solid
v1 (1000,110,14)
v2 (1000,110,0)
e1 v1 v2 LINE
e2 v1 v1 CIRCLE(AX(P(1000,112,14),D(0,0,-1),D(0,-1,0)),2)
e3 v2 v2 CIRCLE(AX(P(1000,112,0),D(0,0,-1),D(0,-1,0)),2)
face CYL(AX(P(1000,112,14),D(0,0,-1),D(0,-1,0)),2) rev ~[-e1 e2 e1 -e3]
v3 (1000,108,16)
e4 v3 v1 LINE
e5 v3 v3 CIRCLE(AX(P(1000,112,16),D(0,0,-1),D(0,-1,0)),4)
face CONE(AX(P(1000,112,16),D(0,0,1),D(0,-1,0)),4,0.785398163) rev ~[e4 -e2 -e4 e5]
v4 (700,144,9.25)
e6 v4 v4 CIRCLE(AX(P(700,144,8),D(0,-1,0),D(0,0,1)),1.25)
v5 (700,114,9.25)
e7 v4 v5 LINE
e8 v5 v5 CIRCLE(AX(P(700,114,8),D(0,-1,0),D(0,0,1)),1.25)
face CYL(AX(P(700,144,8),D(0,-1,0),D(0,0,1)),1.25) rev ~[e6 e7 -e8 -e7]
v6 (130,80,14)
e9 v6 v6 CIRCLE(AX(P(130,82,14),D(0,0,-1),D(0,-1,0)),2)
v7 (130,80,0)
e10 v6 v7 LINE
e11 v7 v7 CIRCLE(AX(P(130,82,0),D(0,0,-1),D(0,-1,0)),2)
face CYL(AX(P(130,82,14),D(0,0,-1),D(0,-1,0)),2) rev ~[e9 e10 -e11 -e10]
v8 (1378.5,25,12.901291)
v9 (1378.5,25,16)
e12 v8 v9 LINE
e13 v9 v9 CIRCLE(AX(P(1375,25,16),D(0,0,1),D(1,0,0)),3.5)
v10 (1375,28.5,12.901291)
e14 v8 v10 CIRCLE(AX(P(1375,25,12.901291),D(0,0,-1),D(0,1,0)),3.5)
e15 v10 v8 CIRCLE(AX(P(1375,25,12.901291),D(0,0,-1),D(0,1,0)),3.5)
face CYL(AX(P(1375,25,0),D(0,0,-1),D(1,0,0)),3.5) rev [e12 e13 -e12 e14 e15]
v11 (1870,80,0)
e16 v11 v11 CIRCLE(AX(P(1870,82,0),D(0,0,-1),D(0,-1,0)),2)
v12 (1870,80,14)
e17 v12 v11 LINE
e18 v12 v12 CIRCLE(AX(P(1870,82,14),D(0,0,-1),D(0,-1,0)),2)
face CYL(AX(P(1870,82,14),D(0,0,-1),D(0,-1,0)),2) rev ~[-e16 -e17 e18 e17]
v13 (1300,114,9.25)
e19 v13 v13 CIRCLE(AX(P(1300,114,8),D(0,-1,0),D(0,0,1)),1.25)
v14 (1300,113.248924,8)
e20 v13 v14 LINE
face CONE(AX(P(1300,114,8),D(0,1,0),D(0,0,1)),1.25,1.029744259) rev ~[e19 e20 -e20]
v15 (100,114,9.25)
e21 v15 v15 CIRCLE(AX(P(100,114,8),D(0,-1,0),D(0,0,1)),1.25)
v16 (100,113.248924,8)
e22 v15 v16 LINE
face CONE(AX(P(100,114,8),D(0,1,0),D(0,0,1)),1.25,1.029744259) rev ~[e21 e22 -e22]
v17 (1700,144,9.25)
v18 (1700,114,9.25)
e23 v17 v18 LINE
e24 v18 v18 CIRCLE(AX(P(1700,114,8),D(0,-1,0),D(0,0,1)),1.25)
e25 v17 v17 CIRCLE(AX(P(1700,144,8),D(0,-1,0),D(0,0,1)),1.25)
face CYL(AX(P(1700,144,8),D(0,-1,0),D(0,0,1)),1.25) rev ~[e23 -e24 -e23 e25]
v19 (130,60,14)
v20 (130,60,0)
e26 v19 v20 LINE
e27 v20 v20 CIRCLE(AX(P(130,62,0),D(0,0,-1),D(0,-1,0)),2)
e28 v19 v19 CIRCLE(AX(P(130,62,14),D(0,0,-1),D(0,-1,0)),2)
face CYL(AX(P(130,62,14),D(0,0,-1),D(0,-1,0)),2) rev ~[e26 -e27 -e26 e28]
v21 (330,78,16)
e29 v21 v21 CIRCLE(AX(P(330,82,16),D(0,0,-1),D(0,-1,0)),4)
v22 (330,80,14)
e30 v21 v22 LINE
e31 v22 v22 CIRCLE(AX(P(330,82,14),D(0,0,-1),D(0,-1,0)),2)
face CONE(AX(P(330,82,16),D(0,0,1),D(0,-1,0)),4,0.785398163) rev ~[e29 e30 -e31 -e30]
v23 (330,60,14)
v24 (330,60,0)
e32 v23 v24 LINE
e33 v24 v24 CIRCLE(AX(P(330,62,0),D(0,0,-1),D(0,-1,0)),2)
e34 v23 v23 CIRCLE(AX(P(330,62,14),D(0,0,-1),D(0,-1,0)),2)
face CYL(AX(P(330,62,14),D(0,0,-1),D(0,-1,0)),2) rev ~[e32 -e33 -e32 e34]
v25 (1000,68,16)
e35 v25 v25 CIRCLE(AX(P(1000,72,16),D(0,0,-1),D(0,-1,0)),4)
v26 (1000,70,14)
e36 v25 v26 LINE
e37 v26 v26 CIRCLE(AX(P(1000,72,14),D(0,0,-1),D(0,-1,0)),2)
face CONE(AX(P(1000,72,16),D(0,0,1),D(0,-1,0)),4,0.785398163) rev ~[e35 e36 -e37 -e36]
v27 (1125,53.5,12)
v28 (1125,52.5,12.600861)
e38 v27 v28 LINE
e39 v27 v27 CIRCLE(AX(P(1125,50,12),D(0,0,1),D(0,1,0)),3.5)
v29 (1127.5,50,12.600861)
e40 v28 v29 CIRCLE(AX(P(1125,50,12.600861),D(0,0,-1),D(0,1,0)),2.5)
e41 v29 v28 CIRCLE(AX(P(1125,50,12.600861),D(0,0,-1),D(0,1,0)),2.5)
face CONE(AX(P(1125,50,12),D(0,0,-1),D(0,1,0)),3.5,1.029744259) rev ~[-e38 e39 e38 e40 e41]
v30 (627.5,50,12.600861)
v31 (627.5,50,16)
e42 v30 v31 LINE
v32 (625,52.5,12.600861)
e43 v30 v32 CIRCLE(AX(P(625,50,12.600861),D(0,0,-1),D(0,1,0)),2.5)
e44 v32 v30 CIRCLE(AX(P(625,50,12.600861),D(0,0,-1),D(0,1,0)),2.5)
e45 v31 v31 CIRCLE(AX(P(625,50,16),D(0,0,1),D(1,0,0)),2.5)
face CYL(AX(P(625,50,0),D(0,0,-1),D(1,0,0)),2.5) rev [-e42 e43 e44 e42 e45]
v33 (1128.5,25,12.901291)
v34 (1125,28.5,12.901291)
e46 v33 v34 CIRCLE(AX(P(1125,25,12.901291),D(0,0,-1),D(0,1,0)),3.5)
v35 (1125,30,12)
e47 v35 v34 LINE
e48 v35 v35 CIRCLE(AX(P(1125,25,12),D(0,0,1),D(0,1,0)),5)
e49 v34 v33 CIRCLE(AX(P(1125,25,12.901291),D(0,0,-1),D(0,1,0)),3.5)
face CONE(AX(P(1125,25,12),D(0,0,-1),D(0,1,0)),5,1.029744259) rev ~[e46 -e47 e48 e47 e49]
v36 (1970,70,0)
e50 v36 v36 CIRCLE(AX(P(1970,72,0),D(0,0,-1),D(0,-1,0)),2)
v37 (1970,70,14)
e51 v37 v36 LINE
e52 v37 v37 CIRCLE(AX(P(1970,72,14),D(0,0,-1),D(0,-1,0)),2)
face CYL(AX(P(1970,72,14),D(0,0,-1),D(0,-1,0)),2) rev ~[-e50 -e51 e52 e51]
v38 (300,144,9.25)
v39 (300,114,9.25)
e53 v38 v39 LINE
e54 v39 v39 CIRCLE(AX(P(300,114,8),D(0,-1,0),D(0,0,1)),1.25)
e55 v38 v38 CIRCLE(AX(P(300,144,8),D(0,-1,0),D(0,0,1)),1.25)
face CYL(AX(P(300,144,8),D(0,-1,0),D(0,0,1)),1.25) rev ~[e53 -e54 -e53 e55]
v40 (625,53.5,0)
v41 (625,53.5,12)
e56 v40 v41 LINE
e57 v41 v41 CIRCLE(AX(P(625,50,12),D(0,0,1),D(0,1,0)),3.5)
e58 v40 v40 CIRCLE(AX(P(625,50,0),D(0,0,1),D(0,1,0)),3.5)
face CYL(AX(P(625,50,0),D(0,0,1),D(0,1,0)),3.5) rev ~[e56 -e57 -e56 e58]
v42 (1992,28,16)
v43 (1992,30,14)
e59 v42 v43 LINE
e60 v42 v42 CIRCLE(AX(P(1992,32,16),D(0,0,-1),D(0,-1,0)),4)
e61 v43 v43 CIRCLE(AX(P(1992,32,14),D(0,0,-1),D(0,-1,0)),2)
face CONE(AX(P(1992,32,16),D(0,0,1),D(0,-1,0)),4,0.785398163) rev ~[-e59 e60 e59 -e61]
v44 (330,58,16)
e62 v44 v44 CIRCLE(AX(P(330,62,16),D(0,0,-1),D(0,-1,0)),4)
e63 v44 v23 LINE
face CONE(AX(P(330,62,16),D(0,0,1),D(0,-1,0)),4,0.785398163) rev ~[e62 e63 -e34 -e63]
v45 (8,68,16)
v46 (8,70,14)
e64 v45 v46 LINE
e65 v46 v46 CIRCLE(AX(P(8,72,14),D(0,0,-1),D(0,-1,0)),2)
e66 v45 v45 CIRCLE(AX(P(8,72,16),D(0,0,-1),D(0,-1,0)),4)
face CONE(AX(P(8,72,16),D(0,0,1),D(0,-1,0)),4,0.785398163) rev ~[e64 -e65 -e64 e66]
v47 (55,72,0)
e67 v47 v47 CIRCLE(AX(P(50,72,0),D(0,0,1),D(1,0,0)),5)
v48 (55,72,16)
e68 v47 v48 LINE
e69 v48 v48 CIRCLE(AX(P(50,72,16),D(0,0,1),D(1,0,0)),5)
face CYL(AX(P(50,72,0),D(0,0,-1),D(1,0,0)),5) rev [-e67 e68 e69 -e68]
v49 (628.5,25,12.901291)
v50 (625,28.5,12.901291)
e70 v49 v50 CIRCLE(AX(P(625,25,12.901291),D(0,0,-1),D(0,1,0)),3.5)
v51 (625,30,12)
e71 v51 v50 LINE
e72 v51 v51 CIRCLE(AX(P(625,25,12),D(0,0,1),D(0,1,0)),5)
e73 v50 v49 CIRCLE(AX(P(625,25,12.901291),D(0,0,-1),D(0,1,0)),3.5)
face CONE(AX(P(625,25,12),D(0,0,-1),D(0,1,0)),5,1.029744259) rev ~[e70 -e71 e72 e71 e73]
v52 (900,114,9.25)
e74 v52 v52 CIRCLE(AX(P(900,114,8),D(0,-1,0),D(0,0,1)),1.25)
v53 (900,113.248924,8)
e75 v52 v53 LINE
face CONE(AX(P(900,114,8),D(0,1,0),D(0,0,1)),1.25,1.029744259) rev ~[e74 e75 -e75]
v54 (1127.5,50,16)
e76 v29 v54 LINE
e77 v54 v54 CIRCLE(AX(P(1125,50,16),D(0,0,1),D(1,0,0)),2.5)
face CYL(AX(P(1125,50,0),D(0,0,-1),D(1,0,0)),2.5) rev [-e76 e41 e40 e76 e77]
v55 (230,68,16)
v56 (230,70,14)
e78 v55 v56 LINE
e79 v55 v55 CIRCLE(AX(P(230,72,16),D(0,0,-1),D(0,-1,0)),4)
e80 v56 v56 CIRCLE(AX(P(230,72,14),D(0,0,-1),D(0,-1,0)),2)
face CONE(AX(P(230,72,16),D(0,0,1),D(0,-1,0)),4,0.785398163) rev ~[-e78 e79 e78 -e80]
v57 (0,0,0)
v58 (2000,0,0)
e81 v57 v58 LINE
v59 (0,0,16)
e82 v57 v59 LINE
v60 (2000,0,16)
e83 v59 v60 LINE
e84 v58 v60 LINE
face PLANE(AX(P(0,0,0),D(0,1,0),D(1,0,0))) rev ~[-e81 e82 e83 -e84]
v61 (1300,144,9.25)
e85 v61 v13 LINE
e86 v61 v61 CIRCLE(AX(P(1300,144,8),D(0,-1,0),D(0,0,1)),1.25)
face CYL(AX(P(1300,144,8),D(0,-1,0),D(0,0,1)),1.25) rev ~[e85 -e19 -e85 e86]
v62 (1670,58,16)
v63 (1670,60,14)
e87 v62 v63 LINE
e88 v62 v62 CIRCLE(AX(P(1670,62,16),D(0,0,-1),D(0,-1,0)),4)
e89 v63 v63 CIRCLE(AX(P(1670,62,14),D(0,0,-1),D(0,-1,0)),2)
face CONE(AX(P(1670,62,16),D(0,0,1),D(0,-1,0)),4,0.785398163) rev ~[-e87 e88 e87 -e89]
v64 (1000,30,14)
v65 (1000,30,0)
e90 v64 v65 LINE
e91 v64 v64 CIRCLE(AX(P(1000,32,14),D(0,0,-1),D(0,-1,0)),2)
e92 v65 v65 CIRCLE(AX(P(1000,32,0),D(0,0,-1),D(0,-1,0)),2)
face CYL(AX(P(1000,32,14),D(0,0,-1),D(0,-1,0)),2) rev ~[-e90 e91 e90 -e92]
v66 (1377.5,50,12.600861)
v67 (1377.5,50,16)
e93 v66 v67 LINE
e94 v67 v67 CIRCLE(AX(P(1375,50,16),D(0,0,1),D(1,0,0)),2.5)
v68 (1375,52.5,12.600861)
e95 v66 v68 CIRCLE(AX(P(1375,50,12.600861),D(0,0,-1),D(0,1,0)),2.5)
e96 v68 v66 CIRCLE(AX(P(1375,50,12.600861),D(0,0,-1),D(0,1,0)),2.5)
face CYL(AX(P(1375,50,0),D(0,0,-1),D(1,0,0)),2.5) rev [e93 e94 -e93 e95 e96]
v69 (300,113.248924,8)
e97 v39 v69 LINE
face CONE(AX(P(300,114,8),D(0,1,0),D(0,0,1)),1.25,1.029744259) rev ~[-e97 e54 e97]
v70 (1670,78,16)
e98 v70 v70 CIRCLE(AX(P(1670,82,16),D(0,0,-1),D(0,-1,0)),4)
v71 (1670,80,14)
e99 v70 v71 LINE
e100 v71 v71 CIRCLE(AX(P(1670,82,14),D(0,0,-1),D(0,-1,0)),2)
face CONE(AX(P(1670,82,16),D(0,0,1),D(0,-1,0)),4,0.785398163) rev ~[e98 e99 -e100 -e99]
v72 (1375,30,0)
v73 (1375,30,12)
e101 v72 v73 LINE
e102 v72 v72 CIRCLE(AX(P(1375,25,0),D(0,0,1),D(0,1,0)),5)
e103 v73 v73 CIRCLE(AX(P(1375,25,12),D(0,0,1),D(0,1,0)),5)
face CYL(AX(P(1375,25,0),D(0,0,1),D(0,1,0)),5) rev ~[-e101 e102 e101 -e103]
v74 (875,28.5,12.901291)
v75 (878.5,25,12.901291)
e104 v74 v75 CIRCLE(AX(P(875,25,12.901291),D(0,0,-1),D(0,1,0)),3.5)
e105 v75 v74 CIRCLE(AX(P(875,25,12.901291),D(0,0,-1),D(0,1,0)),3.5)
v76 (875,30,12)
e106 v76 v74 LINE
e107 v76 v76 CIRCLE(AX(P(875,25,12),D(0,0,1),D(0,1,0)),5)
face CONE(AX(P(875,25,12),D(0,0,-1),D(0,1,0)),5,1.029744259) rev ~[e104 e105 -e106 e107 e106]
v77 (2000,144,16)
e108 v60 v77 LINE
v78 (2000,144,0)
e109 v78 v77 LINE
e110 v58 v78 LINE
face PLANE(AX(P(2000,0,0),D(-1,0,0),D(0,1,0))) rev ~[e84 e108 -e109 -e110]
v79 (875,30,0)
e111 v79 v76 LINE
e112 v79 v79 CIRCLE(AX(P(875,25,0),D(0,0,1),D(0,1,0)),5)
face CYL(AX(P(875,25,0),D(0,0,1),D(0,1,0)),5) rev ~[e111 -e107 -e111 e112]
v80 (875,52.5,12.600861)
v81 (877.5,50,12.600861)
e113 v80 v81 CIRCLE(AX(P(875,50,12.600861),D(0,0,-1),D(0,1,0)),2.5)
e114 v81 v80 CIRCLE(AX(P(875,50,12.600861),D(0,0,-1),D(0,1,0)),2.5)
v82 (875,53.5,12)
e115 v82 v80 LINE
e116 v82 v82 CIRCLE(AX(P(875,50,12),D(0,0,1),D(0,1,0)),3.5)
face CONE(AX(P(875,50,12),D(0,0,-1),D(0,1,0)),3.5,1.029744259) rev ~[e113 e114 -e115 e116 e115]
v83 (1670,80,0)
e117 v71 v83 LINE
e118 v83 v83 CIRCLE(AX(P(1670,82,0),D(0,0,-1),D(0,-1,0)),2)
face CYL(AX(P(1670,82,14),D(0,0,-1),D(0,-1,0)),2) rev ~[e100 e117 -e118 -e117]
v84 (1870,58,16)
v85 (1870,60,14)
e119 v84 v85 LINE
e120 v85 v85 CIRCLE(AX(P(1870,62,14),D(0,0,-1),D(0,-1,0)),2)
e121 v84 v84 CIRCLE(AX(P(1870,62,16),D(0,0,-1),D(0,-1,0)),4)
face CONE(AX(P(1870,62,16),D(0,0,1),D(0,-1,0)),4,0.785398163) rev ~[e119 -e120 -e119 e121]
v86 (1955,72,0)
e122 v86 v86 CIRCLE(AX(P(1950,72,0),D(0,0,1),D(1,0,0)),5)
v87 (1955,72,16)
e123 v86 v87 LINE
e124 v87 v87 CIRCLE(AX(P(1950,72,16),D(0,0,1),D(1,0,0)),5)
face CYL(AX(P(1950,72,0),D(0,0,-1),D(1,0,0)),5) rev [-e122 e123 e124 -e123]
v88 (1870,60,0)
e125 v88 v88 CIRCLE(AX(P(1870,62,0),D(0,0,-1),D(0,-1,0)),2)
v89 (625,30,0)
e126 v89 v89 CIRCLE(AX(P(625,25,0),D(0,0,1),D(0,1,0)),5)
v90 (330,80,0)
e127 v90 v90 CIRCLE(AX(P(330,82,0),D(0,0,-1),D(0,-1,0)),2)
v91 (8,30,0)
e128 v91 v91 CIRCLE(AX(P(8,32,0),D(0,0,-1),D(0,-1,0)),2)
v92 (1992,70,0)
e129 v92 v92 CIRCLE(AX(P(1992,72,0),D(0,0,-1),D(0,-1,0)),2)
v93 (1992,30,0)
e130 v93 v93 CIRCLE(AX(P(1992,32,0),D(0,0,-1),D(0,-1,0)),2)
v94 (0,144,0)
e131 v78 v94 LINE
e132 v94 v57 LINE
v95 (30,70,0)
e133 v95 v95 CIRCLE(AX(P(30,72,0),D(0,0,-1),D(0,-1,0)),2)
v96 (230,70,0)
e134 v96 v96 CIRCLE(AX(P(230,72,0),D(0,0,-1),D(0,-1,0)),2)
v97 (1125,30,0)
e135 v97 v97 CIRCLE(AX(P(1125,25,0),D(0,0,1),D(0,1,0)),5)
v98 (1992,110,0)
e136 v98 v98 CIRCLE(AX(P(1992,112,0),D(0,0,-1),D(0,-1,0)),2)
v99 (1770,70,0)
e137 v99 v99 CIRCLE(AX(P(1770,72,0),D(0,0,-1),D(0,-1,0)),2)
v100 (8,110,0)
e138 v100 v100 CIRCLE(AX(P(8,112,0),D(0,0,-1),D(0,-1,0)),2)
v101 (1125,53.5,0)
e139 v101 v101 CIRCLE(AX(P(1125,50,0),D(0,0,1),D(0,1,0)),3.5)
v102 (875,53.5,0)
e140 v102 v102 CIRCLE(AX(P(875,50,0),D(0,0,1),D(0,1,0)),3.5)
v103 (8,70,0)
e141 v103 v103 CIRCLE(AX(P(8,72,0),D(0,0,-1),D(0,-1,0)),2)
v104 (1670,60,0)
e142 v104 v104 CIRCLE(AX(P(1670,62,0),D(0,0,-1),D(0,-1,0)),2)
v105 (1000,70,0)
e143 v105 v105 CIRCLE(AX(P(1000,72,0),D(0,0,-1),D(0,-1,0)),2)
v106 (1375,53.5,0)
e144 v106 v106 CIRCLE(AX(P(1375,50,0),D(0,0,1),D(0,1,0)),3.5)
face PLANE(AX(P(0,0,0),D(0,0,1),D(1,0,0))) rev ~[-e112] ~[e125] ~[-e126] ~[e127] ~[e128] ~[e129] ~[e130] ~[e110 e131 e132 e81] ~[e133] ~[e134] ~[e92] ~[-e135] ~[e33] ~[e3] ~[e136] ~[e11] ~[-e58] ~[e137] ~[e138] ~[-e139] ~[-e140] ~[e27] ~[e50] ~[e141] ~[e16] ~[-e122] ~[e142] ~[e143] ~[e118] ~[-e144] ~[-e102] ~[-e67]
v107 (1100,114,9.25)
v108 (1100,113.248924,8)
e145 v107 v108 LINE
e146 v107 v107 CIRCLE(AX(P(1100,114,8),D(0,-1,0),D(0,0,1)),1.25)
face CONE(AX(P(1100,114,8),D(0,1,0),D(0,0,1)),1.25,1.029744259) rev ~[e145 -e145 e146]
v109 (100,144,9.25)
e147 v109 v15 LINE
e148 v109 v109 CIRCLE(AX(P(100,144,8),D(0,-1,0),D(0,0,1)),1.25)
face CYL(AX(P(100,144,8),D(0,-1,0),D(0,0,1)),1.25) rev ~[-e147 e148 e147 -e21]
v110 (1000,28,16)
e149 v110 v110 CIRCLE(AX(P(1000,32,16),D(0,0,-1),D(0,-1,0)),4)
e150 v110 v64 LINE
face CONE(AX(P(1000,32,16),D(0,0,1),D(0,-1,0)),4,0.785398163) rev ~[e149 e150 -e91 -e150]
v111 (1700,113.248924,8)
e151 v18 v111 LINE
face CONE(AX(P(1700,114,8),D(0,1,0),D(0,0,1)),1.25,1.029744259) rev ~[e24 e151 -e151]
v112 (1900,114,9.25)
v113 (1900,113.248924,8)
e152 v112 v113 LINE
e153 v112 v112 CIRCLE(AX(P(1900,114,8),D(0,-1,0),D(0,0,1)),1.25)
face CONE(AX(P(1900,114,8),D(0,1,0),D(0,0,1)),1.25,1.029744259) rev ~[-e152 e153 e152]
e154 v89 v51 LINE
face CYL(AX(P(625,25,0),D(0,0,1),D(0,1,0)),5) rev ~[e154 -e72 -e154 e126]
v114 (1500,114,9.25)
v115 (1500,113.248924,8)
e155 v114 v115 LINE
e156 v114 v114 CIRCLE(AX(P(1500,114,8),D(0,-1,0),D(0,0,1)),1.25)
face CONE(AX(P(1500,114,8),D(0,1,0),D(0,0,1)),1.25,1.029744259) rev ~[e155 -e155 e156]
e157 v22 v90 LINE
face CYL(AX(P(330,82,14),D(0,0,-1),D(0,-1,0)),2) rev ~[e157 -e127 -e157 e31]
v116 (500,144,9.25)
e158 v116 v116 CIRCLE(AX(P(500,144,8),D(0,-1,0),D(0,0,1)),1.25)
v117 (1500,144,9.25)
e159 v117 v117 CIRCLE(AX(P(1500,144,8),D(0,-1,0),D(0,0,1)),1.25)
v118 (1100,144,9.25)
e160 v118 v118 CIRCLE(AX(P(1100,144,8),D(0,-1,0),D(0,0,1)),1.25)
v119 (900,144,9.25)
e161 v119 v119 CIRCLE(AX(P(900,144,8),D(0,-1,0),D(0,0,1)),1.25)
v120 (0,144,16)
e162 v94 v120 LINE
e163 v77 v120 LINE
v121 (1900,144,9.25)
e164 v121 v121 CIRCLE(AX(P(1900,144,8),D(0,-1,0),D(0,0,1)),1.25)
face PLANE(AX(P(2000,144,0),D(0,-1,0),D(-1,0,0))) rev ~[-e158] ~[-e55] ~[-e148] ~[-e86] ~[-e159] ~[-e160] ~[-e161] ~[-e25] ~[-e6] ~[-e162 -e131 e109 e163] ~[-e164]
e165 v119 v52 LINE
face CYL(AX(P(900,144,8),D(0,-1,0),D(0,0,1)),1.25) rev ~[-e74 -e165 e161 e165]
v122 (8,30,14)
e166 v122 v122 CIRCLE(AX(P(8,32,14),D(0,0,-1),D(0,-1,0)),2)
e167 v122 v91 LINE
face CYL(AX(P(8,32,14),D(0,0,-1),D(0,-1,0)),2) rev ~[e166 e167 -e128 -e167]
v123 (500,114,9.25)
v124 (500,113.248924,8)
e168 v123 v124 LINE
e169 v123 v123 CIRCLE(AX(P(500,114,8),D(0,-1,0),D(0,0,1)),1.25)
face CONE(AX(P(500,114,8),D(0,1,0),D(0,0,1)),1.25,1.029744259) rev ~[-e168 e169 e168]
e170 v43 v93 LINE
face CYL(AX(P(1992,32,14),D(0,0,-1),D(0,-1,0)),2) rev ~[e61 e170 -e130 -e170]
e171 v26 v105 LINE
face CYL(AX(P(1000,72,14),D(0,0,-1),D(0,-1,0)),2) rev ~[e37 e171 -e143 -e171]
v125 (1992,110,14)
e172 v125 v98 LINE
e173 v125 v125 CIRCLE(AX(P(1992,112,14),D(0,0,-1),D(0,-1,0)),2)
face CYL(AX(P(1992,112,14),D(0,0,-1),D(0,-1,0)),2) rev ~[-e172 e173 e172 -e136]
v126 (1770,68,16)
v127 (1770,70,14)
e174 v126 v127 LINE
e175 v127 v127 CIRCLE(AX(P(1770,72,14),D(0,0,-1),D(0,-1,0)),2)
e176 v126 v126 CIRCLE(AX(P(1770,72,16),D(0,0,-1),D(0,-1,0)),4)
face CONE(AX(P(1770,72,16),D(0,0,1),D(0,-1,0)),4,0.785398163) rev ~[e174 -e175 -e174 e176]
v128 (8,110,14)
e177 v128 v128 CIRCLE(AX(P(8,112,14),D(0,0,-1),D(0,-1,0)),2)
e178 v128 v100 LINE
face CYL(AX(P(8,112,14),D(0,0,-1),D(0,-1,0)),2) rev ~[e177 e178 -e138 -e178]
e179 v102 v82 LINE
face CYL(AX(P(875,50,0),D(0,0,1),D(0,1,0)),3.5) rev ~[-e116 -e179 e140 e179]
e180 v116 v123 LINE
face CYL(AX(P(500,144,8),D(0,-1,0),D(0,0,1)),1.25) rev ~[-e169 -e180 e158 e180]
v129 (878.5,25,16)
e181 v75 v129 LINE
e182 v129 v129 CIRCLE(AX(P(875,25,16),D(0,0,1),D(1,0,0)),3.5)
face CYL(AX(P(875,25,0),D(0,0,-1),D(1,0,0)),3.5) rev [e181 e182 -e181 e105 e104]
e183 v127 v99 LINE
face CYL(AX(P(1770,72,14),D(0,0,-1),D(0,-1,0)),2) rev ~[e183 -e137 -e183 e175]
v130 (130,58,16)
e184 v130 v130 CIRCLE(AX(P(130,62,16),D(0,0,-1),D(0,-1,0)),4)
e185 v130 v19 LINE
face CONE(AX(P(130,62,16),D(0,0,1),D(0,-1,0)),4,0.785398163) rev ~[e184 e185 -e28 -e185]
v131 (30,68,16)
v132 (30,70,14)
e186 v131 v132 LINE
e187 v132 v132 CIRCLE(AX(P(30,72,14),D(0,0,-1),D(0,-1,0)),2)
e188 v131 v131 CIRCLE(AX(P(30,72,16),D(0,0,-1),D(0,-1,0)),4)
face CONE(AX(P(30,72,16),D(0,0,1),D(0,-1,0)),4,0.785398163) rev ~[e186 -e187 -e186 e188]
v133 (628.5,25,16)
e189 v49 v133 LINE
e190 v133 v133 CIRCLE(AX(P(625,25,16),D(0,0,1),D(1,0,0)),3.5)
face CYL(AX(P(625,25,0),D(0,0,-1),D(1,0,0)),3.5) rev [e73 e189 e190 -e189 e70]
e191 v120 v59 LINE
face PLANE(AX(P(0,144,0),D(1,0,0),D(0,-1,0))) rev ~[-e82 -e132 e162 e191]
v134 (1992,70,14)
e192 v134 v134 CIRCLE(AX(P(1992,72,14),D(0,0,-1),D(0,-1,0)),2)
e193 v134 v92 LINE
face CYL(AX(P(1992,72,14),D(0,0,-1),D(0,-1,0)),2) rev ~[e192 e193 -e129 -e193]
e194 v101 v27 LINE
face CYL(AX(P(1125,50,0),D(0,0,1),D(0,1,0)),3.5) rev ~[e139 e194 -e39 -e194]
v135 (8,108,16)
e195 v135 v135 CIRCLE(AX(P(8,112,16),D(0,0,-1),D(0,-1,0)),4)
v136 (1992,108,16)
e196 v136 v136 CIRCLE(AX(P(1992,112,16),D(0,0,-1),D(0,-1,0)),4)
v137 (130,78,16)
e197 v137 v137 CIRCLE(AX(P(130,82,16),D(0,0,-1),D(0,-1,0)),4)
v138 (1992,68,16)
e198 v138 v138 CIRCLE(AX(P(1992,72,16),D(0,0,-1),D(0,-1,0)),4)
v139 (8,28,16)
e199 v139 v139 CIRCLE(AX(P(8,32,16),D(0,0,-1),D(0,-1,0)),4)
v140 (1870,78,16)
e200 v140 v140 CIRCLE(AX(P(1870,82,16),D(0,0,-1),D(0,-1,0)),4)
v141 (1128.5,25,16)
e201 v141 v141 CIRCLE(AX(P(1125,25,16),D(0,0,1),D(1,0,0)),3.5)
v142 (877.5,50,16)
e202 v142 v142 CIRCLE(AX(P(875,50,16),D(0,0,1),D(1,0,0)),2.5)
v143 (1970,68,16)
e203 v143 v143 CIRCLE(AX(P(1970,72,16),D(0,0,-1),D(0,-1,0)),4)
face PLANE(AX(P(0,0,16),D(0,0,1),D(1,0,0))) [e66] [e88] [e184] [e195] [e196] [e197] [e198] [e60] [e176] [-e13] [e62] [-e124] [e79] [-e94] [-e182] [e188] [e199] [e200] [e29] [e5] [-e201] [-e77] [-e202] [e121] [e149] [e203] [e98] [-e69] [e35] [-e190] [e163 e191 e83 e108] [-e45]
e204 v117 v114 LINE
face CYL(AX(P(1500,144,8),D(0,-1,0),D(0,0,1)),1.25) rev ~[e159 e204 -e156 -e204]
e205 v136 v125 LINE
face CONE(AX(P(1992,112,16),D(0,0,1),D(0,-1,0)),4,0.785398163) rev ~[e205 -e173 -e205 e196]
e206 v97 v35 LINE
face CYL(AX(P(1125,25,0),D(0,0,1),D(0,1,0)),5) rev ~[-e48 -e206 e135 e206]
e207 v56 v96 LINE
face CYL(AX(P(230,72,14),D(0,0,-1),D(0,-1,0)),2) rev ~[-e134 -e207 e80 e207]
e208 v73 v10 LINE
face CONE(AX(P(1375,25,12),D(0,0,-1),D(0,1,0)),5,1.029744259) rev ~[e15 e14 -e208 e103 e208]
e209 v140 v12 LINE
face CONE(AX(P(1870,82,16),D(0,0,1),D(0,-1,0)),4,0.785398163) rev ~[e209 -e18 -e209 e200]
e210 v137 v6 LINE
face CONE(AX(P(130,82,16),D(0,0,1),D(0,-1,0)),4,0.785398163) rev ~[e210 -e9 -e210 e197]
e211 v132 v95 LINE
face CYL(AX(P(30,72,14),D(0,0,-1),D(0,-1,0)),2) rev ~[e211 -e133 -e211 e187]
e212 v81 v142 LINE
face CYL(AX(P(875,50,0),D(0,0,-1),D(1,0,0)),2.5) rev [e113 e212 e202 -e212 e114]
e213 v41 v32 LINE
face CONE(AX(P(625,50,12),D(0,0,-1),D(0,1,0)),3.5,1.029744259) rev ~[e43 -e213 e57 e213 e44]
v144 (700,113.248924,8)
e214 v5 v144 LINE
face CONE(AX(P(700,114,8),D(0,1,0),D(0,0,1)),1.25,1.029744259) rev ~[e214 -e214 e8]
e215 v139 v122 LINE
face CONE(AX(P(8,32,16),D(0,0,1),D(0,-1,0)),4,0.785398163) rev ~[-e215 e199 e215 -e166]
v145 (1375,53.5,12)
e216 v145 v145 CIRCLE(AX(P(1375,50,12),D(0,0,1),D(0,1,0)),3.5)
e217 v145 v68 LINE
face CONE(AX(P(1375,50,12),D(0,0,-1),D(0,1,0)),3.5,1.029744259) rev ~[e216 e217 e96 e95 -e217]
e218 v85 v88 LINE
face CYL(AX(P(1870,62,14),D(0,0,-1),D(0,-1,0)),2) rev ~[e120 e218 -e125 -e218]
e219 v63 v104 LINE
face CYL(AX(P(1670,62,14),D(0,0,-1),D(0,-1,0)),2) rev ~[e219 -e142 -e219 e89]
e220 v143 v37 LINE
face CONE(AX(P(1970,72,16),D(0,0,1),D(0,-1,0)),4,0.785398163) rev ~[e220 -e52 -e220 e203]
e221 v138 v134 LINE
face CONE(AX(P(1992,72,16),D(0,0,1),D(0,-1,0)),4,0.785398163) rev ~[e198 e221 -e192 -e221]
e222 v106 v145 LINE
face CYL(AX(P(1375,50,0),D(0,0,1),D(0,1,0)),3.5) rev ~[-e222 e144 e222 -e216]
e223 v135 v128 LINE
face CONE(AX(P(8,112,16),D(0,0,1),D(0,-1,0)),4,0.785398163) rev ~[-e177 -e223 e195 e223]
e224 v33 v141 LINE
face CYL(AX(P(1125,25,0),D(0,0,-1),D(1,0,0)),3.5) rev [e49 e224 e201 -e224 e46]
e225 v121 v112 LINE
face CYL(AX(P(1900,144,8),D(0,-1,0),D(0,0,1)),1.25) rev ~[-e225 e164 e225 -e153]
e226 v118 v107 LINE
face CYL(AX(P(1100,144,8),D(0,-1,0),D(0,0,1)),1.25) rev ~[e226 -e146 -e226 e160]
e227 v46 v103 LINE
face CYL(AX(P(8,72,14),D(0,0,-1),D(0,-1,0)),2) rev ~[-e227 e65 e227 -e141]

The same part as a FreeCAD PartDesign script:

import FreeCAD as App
import Part
import Sketcher
from FreeCAD import Vector
Q = App.Units.Quantity


def add_polygon(sketch, points):
    """Adds a closed chain of lines whose ends are joined by coincident constraints."""
    first, n = sketch.GeometryCount, len(points)
    for a, b in zip(points, points[1:] + points[:1]):
        sketch.addGeometry(Part.LineSegment(App.Vector(*a, 0), App.Vector(*b, 0)), False)
    for i in range(n):
        sketch.addConstraint(Sketcher.Constraint("Coincident", first + i, 2, first + (i + 1) % n, 1))

doc = App.newDocument("Part")
body = doc.addObject("PartDesign::Body", "Body")

# Sketch on XY plane
sketch1 = doc.addObject("Sketcher::SketchObject", "Sketch")
body.addObject(sketch1)
sketch1.AttachmentSupport = (doc.XY_Plane, [""])
sketch1.MapMode = "FlatFace"
add_polygon(sketch1, [(0, 144), (0, 0), (2000, 0), (2000, 144)])  # lines 0-3
sketch1.addGeometry(Part.Circle(Vector(8, 32, 0), Vector(0, 0, 1), 1.5), False)  # 4
sketch1.addGeometry(Part.Circle(Vector(625, 25, 0), Vector(0, 0, 1), 3.5), False)  # 5
sketch1.addGeometry(Part.Circle(Vector(875, 25, 0), Vector(0, 0, 1), 3.5), False)  # 6
sketch1.addGeometry(Part.Circle(Vector(130, 62, 0), Vector(0, 0, 1), 1.5), False)  # 7
sketch1.addGeometry(Part.Circle(Vector(330, 62, 0), Vector(0, 0, 1), 1.5), False)  # 8
sketch1.addGeometry(Part.Circle(Vector(625, 50, 0), Vector(0, 0, 1), 2.5), False)  # 9
sketch1.addGeometry(Part.Circle(Vector(875, 50, 0), Vector(0, 0, 1), 2.5), False)  # 10
sketch1.addGeometry(Part.Circle(Vector(1125, 25, 0), Vector(0, 0, 1), 3.5), False)  # 11
sketch1.addGeometry(Part.Circle(Vector(1000, 32, 0), Vector(0, 0, 1), 1.5), False)  # 12
sketch1.addGeometry(Part.Circle(Vector(1375, 25, 0), Vector(0, 0, 1), 3.5), False)  # 13
sketch1.addGeometry(Part.Circle(Vector(1992, 32, 0), Vector(0, 0, 1), 1.5), False)  # 14
sketch1.addGeometry(Part.Circle(Vector(1125, 50, 0), Vector(0, 0, 1), 2.5), False)  # 15
sketch1.addGeometry(Part.Circle(Vector(1375, 50, 0), Vector(0, 0, 1), 2.5), False)  # 16
sketch1.addGeometry(Part.Circle(Vector(1670, 62, 0), Vector(0, 0, 1), 1.5), False)  # 17
sketch1.addGeometry(Part.Circle(Vector(1870, 62, 0), Vector(0, 0, 1), 1.5), False)  # 18
sketch1.addGeometry(Part.Circle(Vector(8, 72, 0), Vector(0, 0, 1), 1.5), False)  # 19
sketch1.addGeometry(Part.Circle(Vector(30, 72, 0), Vector(0, 0, 1), 1.5), False)  # 20
sketch1.addGeometry(Part.Circle(Vector(50, 72, 0), Vector(0, 0, 1), 5), False)  # 21
sketch1.addGeometry(Part.Circle(Vector(230, 72, 0), Vector(0, 0, 1), 1.5), False)  # 22
sketch1.addGeometry(Part.Circle(Vector(130, 82, 0), Vector(0, 0, 1), 1.5), False)  # 23
sketch1.addGeometry(Part.Circle(Vector(330, 82, 0), Vector(0, 0, 1), 1.5), False)  # 24
sketch1.addGeometry(Part.Circle(Vector(8, 112, 0), Vector(0, 0, 1), 1.5), False)  # 25
sketch1.addGeometry(Part.Circle(Vector(1000, 72, 0), Vector(0, 0, 1), 1.5), False)  # 26
sketch1.addGeometry(Part.Circle(Vector(1670, 82, 0), Vector(0, 0, 1), 1.5), False)  # 27
sketch1.addGeometry(Part.Circle(Vector(1770, 72, 0), Vector(0, 0, 1), 1.5), False)  # 28
sketch1.addGeometry(Part.Circle(Vector(1950, 72, 0), Vector(0, 0, 1), 5), False)  # 29
sketch1.addGeometry(Part.Circle(Vector(1970, 72, 0), Vector(0, 0, 1), 1.5), False)  # 30
sketch1.addGeometry(Part.Circle(Vector(1992, 72, 0), Vector(0, 0, 1), 1.5), False)  # 31
sketch1.addGeometry(Part.Circle(Vector(1870, 82, 0), Vector(0, 0, 1), 1.5), False)  # 32
sketch1.addGeometry(Part.Circle(Vector(1000, 112, 0), Vector(0, 0, 1), 1.5), False)  # 33
sketch1.addGeometry(Part.Circle(Vector(1992, 112, 0), Vector(0, 0, 1), 1.5), False)  # 34
sketch1.addConstraint(Sketcher.Constraint("Vertical", 0))
sketch1.addConstraint(Sketcher.Constraint("Horizontal", 1))
sketch1.addConstraint(Sketcher.Constraint("Vertical", 2))
sketch1.addConstraint(Sketcher.Constraint("Horizontal", 3))
sketch1.addConstraint(Sketcher.Constraint("Coincident", 0, 2, -1, 1))
sketch1.addConstraint(Sketcher.Constraint("Equal", 5, 6))
sketch1.addConstraint(Sketcher.Constraint("Equal", 4, 7))
sketch1.addConstraint(Sketcher.Constraint("Equal", 7, 8))
sketch1.addConstraint(Sketcher.Constraint("Equal", 9, 10))
sketch1.addConstraint(Sketcher.Constraint("Equal", 6, 11))
sketch1.addConstraint(Sketcher.Constraint("Equal", 8, 12))
sketch1.addConstraint(Sketcher.Constraint("Equal", 11, 13))
sketch1.addConstraint(Sketcher.Constraint("Equal", 12, 14))
sketch1.addConstraint(Sketcher.Constraint("Equal", 10, 15))
sketch1.addConstraint(Sketcher.Constraint("Equal", 15, 16))
sketch1.addConstraint(Sketcher.Constraint("Equal", 14, 17))
sketch1.addConstraint(Sketcher.Constraint("Equal", 17, 18))
sketch1.addConstraint(Sketcher.Constraint("Equal", 18, 19))
sketch1.addConstraint(Sketcher.Constraint("Equal", 19, 20))
sketch1.addConstraint(Sketcher.Constraint("Equal", 20, 22))
sketch1.addConstraint(Sketcher.Constraint("Equal", 22, 23))
sketch1.addConstraint(Sketcher.Constraint("Equal", 23, 24))
sketch1.addConstraint(Sketcher.Constraint("Equal", 24, 25))
sketch1.addConstraint(Sketcher.Constraint("Equal", 25, 26))
sketch1.addConstraint(Sketcher.Constraint("Equal", 26, 27))
sketch1.addConstraint(Sketcher.Constraint("Equal", 27, 28))
sketch1.addConstraint(Sketcher.Constraint("Equal", 21, 29))
sketch1.addConstraint(Sketcher.Constraint("Equal", 28, 30))
sketch1.addConstraint(Sketcher.Constraint("Equal", 30, 31))
sketch1.addConstraint(Sketcher.Constraint("Equal", 31, 32))
sketch1.addConstraint(Sketcher.Constraint("Equal", 32, 33))
sketch1.addConstraint(Sketcher.Constraint("Equal", 33, 34))
sketch1.addConstraint(Sketcher.Constraint("Horizontal", 5, 3, 6, 3))
sketch1.addConstraint(Sketcher.Constraint("Horizontal", 7, 3, 8, 3))
sketch1.addConstraint(Sketcher.Constraint("Horizontal", 9, 3, 10, 3))
sketch1.addConstraint(Sketcher.Constraint("Horizontal", 6, 3, 11, 3))
sketch1.addConstraint(Sketcher.Constraint("Horizontal", 4, 3, 12, 3))
sketch1.addConstraint(Sketcher.Constraint("Horizontal", 11, 3, 13, 3))
sketch1.addConstraint(Sketcher.Constraint("Horizontal", 12, 3, 14, 3))
sketch1.addConstraint(Sketcher.Constraint("Horizontal", 10, 3, 15, 3))
sketch1.addConstraint(Sketcher.Constraint("Horizontal", 15, 3, 16, 3))
sketch1.addConstraint(Sketcher.Constraint("Horizontal", 8, 3, 17, 3))
sketch1.addConstraint(Sketcher.Constraint("Horizontal", 17, 3, 18, 3))
sketch1.addConstraint(Sketcher.Constraint("Horizontal", 19, 3, 20, 3))
sketch1.addConstraint(Sketcher.Constraint("Horizontal", 20, 3, 21, 3))
sketch1.addConstraint(Sketcher.Constraint("Horizontal", 21, 3, 22, 3))
sketch1.addConstraint(Sketcher.Constraint("Horizontal", 23, 3, 24, 3))
sketch1.addConstraint(Sketcher.Constraint("Horizontal", 22, 3, 26, 3))
sketch1.addConstraint(Sketcher.Constraint("Horizontal", 24, 3, 27, 3))
sketch1.addConstraint(Sketcher.Constraint("Horizontal", 26, 3, 28, 3))
sketch1.addConstraint(Sketcher.Constraint("Horizontal", 28, 3, 29, 3))
sketch1.addConstraint(Sketcher.Constraint("Horizontal", 29, 3, 30, 3))
sketch1.addConstraint(Sketcher.Constraint("Horizontal", 30, 3, 31, 3))
sketch1.addConstraint(Sketcher.Constraint("Horizontal", 27, 3, 32, 3))
sketch1.addConstraint(Sketcher.Constraint("Horizontal", 25, 3, 33, 3))
sketch1.addConstraint(Sketcher.Constraint("Horizontal", 33, 3, 34, 3))
sketch1.addConstraint(Sketcher.Constraint("Vertical", 5, 3, 9, 3))
sketch1.addConstraint(Sketcher.Constraint("Vertical", 6, 3, 10, 3))
sketch1.addConstraint(Sketcher.Constraint("Vertical", 11, 3, 15, 3))
sketch1.addConstraint(Sketcher.Constraint("Vertical", 13, 3, 16, 3))
sketch1.addConstraint(Sketcher.Constraint("Vertical", 4, 3, 19, 3))
sketch1.addConstraint(Sketcher.Constraint("Vertical", 7, 3, 23, 3))
sketch1.addConstraint(Sketcher.Constraint("Vertical", 8, 3, 24, 3))
sketch1.addConstraint(Sketcher.Constraint("Vertical", 19, 3, 25, 3))
sketch1.addConstraint(Sketcher.Constraint("Vertical", 12, 3, 26, 3))
sketch1.addConstraint(Sketcher.Constraint("Vertical", 17, 3, 27, 3))
sketch1.addConstraint(Sketcher.Constraint("Vertical", 14, 3, 31, 3))
sketch1.addConstraint(Sketcher.Constraint("Vertical", 18, 3, 32, 3))
sketch1.addConstraint(Sketcher.Constraint("Vertical", 26, 3, 33, 3))
sketch1.addConstraint(Sketcher.Constraint("Vertical", 31, 3, 34, 3))
sketch1.addConstraint(Sketcher.Constraint("Diameter", 4, Q("3 mm")))
sketch1.addConstraint(Sketcher.Constraint("Diameter", 5, Q("7 mm")))
sketch1.addConstraint(Sketcher.Constraint("Diameter", 9, Q("5 mm")))
sketch1.addConstraint(Sketcher.Constraint("Diameter", 21, Q("10 mm")))
sketch1.addConstraint(Sketcher.Constraint("DistanceX", 1, 1, 1, 2, Q("2000 mm")))
sketch1.addConstraint(Sketcher.Constraint("DistanceY", 0, 2, 0, 1, Q("144 mm")))
sketch1.addConstraint(Sketcher.Constraint("DistanceX", -1, 1, 4, 3, Q("8 mm")))
sketch1.addConstraint(Sketcher.Constraint("DistanceY", -1, 1, 5, 3, Q("25 mm")))
sketch1.addConstraint(Sketcher.Constraint("DistanceY", -1, 1, 9, 3, Q("50 mm")))
sketch1.addConstraint(Sketcher.Constraint("DistanceX", -1, 1, 20, 3, Q("30 mm")))
sketch1.addConstraint(Sketcher.Constraint("DistanceX", -1, 1, 21, 3, Q("50 mm")))
sketch1.addConstraint(Sketcher.Constraint("DistanceY", 5, 3, 4, 3, Q("7 mm")))
sketch1.addConstraint(Sketcher.Constraint("DistanceX", 5, 3, 6, 3, Q("250 mm")))
sketch1.addConstraint(Sketcher.Constraint("DistanceY", 4, 3, 7, 3, Q("30 mm")))
sketch1.addConstraint(Sketcher.Constraint("DistanceX", 6, 3, 11, 3, Q("250 mm")))
sketch1.addConstraint(Sketcher.Constraint("DistanceX", 6, 3, 12, 3, Q("125 mm")))
sketch1.addConstraint(Sketcher.Constraint("DistanceX", 11, 3, 13, 3, Q("250 mm")))
sketch1.addConstraint(Sketcher.Constraint("DistanceY", 4, 3, 19, 3, Q("40 mm")))
sketch1.addConstraint(Sketcher.Constraint("DistanceX", 20, 3, 7, 3, Q("100 mm")))
sketch1.addConstraint(Sketcher.Constraint("DistanceX", 7, 3, 22, 3, Q("100 mm")))
sketch1.addConstraint(Sketcher.Constraint("DistanceX", 22, 3, 8, 3, Q("100 mm")))
sketch1.addConstraint(Sketcher.Constraint("DistanceY", 21, 3, 23, 3, Q("10 mm")))
sketch1.addConstraint(Sketcher.Constraint("DistanceY", 19, 3, 25, 3, Q("40 mm")))
sketch1.addConstraint(Sketcher.Constraint("DistanceX", 17, 3, 28, 3, Q("100 mm")))
sketch1.addConstraint(Sketcher.Constraint("DistanceX", 28, 3, 18, 3, Q("100 mm")))
sketch1.addConstraint(Sketcher.Constraint("DistanceX", 18, 3, 30, 3, Q("100 mm")))
sketch1.addConstraint(Sketcher.Constraint("DistanceX", 14, 3, 1, 2, Q("8 mm")))
sketch1.addConstraint(Sketcher.Constraint("DistanceX", 30, 3, 1, 2, Q("30 mm")))
sketch1.addConstraint(Sketcher.Constraint("DistanceX", 29, 3, 1, 2, Q("50 mm")))
sketch1.addConstraint(Sketcher.Constraint("DistanceX", -1, 1, 5, 3, Q("625 mm")))
pad1 = doc.addObject("PartDesign::Pad", "Pad")
body.addObject(pad1)
pad1.Profile = sketch1
pad1.Length = 16

# Sketch on XY plane
sketch2 = doc.addObject("Sketcher::SketchObject", "Sketch001")
body.addObject(sketch2)
sketch2.AttachmentSupport = (doc.XY_Plane, [""])
sketch2.MapMode = "FlatFace"
sketch2.addGeometry(Part.Circle(Vector(1375, 25, 0), Vector(0, 0, 1), 5), False)
sketch2.addGeometry(Part.Circle(Vector(1125, 25, 0), Vector(0, 0, 1), 5), False)
sketch2.addGeometry(Part.Circle(Vector(875, 25, 0), Vector(0, 0, 1), 5), False)
sketch2.addGeometry(Part.Circle(Vector(625, 25, 0), Vector(0, 0, 1), 5), False)
sketch2.addConstraint(Sketcher.Constraint("Equal", 0, 1))
sketch2.addConstraint(Sketcher.Constraint("Equal", 1, 2))
sketch2.addConstraint(Sketcher.Constraint("Equal", 2, 3))
sketch2.addConstraint(Sketcher.Constraint("Horizontal", 0, 3, 1, 3))
sketch2.addConstraint(Sketcher.Constraint("Horizontal", 1, 3, 2, 3))
sketch2.addConstraint(Sketcher.Constraint("Horizontal", 2, 3, 3, 3))
sketch2.addConstraint(Sketcher.Constraint("Diameter", 0, Q("10 mm")))
sketch2.addConstraint(Sketcher.Constraint("DistanceX", -1, 1, 0, 3, Q("1375 mm")))
sketch2.addConstraint(Sketcher.Constraint("DistanceY", -1, 1, 0, 3, Q("25 mm")))
sketch2.addConstraint(Sketcher.Constraint("DistanceX", -1, 1, 1, 3, Q("1125 mm")))
sketch2.addConstraint(Sketcher.Constraint("DistanceX", -1, 1, 2, 3, Q("875 mm")))
sketch2.addConstraint(Sketcher.Constraint("DistanceX", -1, 1, 3, 3, Q("625 mm")))
doc.recompute()
hole = doc.addObject("PartDesign::Hole", "Hole")
body.addObject(hole)
hole.Profile = sketch2
hole.ThreadType = "None"
hole.Diameter = 10
hole.DepthType = "Dimension"
hole.Depth = 12
hole.DrillPoint = "Angled"
hole.DrillPointAngle = 118
hole.Reversed = True

# Sketch on XY plane
sketch3 = doc.addObject("Sketcher::SketchObject", "Sketch002")
body.addObject(sketch3)
sketch3.AttachmentSupport = (doc.XY_Plane, [""])
sketch3.MapMode = "FlatFace"
sketch3.addGeometry(Part.Circle(Vector(1125, 50, 0), Vector(0, 0, 1), 3.5), False)
sketch3.addGeometry(Part.Circle(Vector(875, 50, 0), Vector(0, 0, 1), 3.5), False)
sketch3.addGeometry(Part.Circle(Vector(625, 50, 0), Vector(0, 0, 1), 3.5), False)
sketch3.addGeometry(Part.Circle(Vector(1375, 50, 0), Vector(0, 0, 1), 3.5), False)
sketch3.addConstraint(Sketcher.Constraint("Equal", 0, 1))
sketch3.addConstraint(Sketcher.Constraint("Equal", 1, 2))
sketch3.addConstraint(Sketcher.Constraint("Equal", 2, 3))
sketch3.addConstraint(Sketcher.Constraint("Horizontal", 0, 3, 1, 3))
sketch3.addConstraint(Sketcher.Constraint("Horizontal", 1, 3, 2, 3))
sketch3.addConstraint(Sketcher.Constraint("Horizontal", 2, 3, 3, 3))
sketch3.addConstraint(Sketcher.Constraint("Diameter", 0, Q("7 mm")))
sketch3.addConstraint(Sketcher.Constraint("DistanceX", -1, 1, 0, 3, Q("1125 mm")))
sketch3.addConstraint(Sketcher.Constraint("DistanceY", -1, 1, 0, 3, Q("50 mm")))
sketch3.addConstraint(Sketcher.Constraint("DistanceX", -1, 1, 1, 3, Q("875 mm")))
sketch3.addConstraint(Sketcher.Constraint("DistanceX", -1, 1, 2, 3, Q("625 mm")))
sketch3.addConstraint(Sketcher.Constraint("DistanceX", -1, 1, 3, 3, Q("1375 mm")))
doc.recompute()
hole2 = doc.addObject("PartDesign::Hole", "Hole001")
body.addObject(hole2)
hole2.Profile = sketch3
hole2.ThreadType = "None"
hole2.Diameter = 7
hole2.DepthType = "Dimension"
hole2.Depth = 12
hole2.DrillPoint = "Angled"
hole2.DrillPointAngle = 118
hole2.Reversed = True

# Sketch on XY plane
sketch4 = doc.addObject("Sketcher::SketchObject", "Sketch003")
body.addObject(sketch4)
sketch4.AttachmentSupport = (doc.XY_Plane, [""])
sketch4.MapMode = "FlatFace"
sketch4.AttachmentOffset = App.Placement(Vector(0, 0, 16), App.Rotation())
sketch4.addGeometry(Part.Circle(Vector(1970, 72, 0), Vector(0, 0, 1), 2), False)
sketch4.addGeometry(Part.Circle(Vector(1992, 32, 0), Vector(0, 0, 1), 2), False)
sketch4.addGeometry(Part.Circle(Vector(1992, 72, 0), Vector(0, 0, 1), 2), False)
sketch4.addGeometry(Part.Circle(Vector(1992, 112, 0), Vector(0, 0, 1), 2), False)
sketch4.addGeometry(Part.Circle(Vector(1870, 82, 0), Vector(0, 0, 1), 2), False)
sketch4.addGeometry(Part.Circle(Vector(1870, 62, 0), Vector(0, 0, 1), 2), False)
sketch4.addGeometry(Part.Circle(Vector(1670, 62, 0), Vector(0, 0, 1), 2), False)
sketch4.addGeometry(Part.Circle(Vector(1670, 82, 0), Vector(0, 0, 1), 2), False)
sketch4.addGeometry(Part.Circle(Vector(1770, 72, 0), Vector(0, 0, 1), 2), False)
sketch4.addGeometry(Part.Circle(Vector(1000, 112, 0), Vector(0, 0, 1), 2), False)
sketch4.addGeometry(Part.Circle(Vector(1000, 72, 0), Vector(0, 0, 1), 2), False)
sketch4.addGeometry(Part.Circle(Vector(1000, 32, 0), Vector(0, 0, 1), 2), False)
sketch4.addGeometry(Part.Circle(Vector(330, 62, 0), Vector(0, 0, 1), 2), False)
sketch4.addGeometry(Part.Circle(Vector(330, 82, 0), Vector(0, 0, 1), 2), False)
sketch4.addGeometry(Part.Circle(Vector(230, 72, 0), Vector(0, 0, 1), 2), False)
sketch4.addGeometry(Part.Circle(Vector(130, 62, 0), Vector(0, 0, 1), 2), False)
sketch4.addGeometry(Part.Circle(Vector(130, 82, 0), Vector(0, 0, 1), 2), False)
sketch4.addGeometry(Part.Circle(Vector(8, 72, 0), Vector(0, 0, 1), 2), False)
sketch4.addGeometry(Part.Circle(Vector(30, 72, 0), Vector(0, 0, 1), 2), False)
sketch4.addGeometry(Part.Circle(Vector(8, 112, 0), Vector(0, 0, 1), 2), False)
sketch4.addGeometry(Part.Circle(Vector(8, 32, 0), Vector(0, 0, 1), 2), False)
sketch4.addConstraint(Sketcher.Constraint("Equal", 0, 1))
sketch4.addConstraint(Sketcher.Constraint("Equal", 1, 2))
sketch4.addConstraint(Sketcher.Constraint("Equal", 2, 3))
sketch4.addConstraint(Sketcher.Constraint("Equal", 3, 4))
sketch4.addConstraint(Sketcher.Constraint("Equal", 4, 5))
sketch4.addConstraint(Sketcher.Constraint("Equal", 5, 6))
sketch4.addConstraint(Sketcher.Constraint("Equal", 6, 7))
sketch4.addConstraint(Sketcher.Constraint("Equal", 7, 8))
sketch4.addConstraint(Sketcher.Constraint("Equal", 8, 9))
sketch4.addConstraint(Sketcher.Constraint("Equal", 9, 10))
sketch4.addConstraint(Sketcher.Constraint("Equal", 10, 11))
sketch4.addConstraint(Sketcher.Constraint("Equal", 11, 12))
sketch4.addConstraint(Sketcher.Constraint("Equal", 12, 13))
sketch4.addConstraint(Sketcher.Constraint("Equal", 13, 14))
sketch4.addConstraint(Sketcher.Constraint("Equal", 14, 15))
sketch4.addConstraint(Sketcher.Constraint("Equal", 15, 16))
sketch4.addConstraint(Sketcher.Constraint("Equal", 16, 17))
sketch4.addConstraint(Sketcher.Constraint("Equal", 17, 18))
sketch4.addConstraint(Sketcher.Constraint("Equal", 18, 19))
sketch4.addConstraint(Sketcher.Constraint("Equal", 19, 20))
sketch4.addConstraint(Sketcher.Constraint("Horizontal", 0, 3, 2, 3))
sketch4.addConstraint(Sketcher.Constraint("Horizontal", 5, 3, 6, 3))
sketch4.addConstraint(Sketcher.Constraint("Horizontal", 4, 3, 7, 3))
sketch4.addConstraint(Sketcher.Constraint("Horizontal", 2, 3, 8, 3))
sketch4.addConstraint(Sketcher.Constraint("Horizontal", 3, 3, 9, 3))
sketch4.addConstraint(Sketcher.Constraint("Horizontal", 8, 3, 10, 3))
sketch4.addConstraint(Sketcher.Constraint("Horizontal", 1, 3, 11, 3))
sketch4.addConstraint(Sketcher.Constraint("Horizontal", 6, 3, 12, 3))
sketch4.addConstraint(Sketcher.Constraint("Horizontal", 7, 3, 13, 3))
sketch4.addConstraint(Sketcher.Constraint("Horizontal", 10, 3, 14, 3))
sketch4.addConstraint(Sketcher.Constraint("Horizontal", 12, 3, 15, 3))
sketch4.addConstraint(Sketcher.Constraint("Horizontal", 13, 3, 16, 3))
sketch4.addConstraint(Sketcher.Constraint("Horizontal", 14, 3, 17, 3))
sketch4.addConstraint(Sketcher.Constraint("Horizontal", 17, 3, 18, 3))
sketch4.addConstraint(Sketcher.Constraint("Horizontal", 9, 3, 19, 3))
sketch4.addConstraint(Sketcher.Constraint("Horizontal", 11, 3, 20, 3))
sketch4.addConstraint(Sketcher.Constraint("Vertical", 1, 3, 2, 3))
sketch4.addConstraint(Sketcher.Constraint("Vertical", 2, 3, 3, 3))
sketch4.addConstraint(Sketcher.Constraint("Vertical", 4, 3, 5, 3))
sketch4.addConstraint(Sketcher.Constraint("Vertical", 6, 3, 7, 3))
sketch4.addConstraint(Sketcher.Constraint("Vertical", 9, 3, 10, 3))
sketch4.addConstraint(Sketcher.Constraint("Vertical", 10, 3, 11, 3))
sketch4.addConstraint(Sketcher.Constraint("Vertical", 12, 3, 13, 3))
sketch4.addConstraint(Sketcher.Constraint("Vertical", 15, 3, 16, 3))
sketch4.addConstraint(Sketcher.Constraint("Vertical", 17, 3, 19, 3))
sketch4.addConstraint(Sketcher.Constraint("Vertical", 19, 3, 20, 3))
sketch4.addConstraint(Sketcher.Constraint("Diameter", 0, Q("4 mm")))
sketch4.addConstraint(Sketcher.Constraint("DistanceX", -1, 1, 0, 3, Q("1970 mm")))
sketch4.addConstraint(Sketcher.Constraint("DistanceY", -1, 1, 0, 3, Q("72 mm")))
sketch4.addConstraint(Sketcher.Constraint("DistanceX", -1, 1, 1, 3, Q("1992 mm")))
sketch4.addConstraint(Sketcher.Constraint("DistanceY", -1, 1, 1, 3, Q("32 mm")))
sketch4.addConstraint(Sketcher.Constraint("DistanceY", -1, 1, 3, 3, Q("112 mm")))
sketch4.addConstraint(Sketcher.Constraint("DistanceX", -1, 1, 4, 3, Q("1870 mm")))
sketch4.addConstraint(Sketcher.Constraint("DistanceY", -1, 1, 4, 3, Q("82 mm")))
sketch4.addConstraint(Sketcher.Constraint("DistanceY", -1, 1, 5, 3, Q("62 mm")))
sketch4.addConstraint(Sketcher.Constraint("DistanceX", -1, 1, 6, 3, Q("1670 mm")))
sketch4.addConstraint(Sketcher.Constraint("DistanceX", -1, 1, 8, 3, Q("1770 mm")))
sketch4.addConstraint(Sketcher.Constraint("DistanceX", -1, 1, 9, 3, Q("1000 mm")))
sketch4.addConstraint(Sketcher.Constraint("DistanceX", -1, 1, 12, 3, Q("330 mm")))
sketch4.addConstraint(Sketcher.Constraint("DistanceX", -1, 1, 14, 3, Q("230 mm")))
sketch4.addConstraint(Sketcher.Constraint("DistanceX", -1, 1, 15, 3, Q("130 mm")))
sketch4.addConstraint(Sketcher.Constraint("DistanceX", -1, 1, 17, 3, Q("8 mm")))
sketch4.addConstraint(Sketcher.Constraint("DistanceX", -1, 1, 18, 3, Q("30 mm")))
doc.recompute()
hole3 = doc.addObject("PartDesign::Hole", "Hole002")
body.addObject(hole3)
hole3.Profile = sketch4
hole3.ThreadType = "None"
hole3.Diameter = 4
hole3.DepthType = "ThroughAll"
hole3.HoleCutType = "Countersink"
hole3.HoleCutDiameter = 8
hole3.HoleCutCountersinkAngle = 90

# Sketch on XZ plane
sketch5 = doc.addObject("Sketcher::SketchObject", "Sketch004")
body.addObject(sketch5)
sketch5.AttachmentSupport = (doc.XZ_Plane, [""])
sketch5.MapMode = "FlatFace"
sketch5.AttachmentOffset = App.Placement(Vector(0, 0, -144), App.Rotation())
sketch5.addGeometry(Part.Circle(Vector(1900, 8, 0), Vector(0, 0, 1), 1.2), False)
sketch5.addGeometry(Part.Circle(Vector(1700, 8, 0), Vector(0, 0, 1), 1.2), False)
sketch5.addGeometry(Part.Circle(Vector(1500, 8, 0), Vector(0, 0, 1), 1.2), False)
sketch5.addGeometry(Part.Circle(Vector(1300, 8, 0), Vector(0, 0, 1), 1.2), False)
sketch5.addGeometry(Part.Circle(Vector(900, 8, 0), Vector(0, 0, 1), 1.2), False)
sketch5.addGeometry(Part.Circle(Vector(700, 8, 0), Vector(0, 0, 1), 1.2), False)
sketch5.addGeometry(Part.Circle(Vector(500, 8, 0), Vector(0, 0, 1), 1.2), False)
sketch5.addGeometry(Part.Circle(Vector(1100, 8, 0), Vector(0, 0, 1), 1.2), False)
sketch5.addGeometry(Part.Circle(Vector(300, 8, 0), Vector(0, 0, 1), 1.2), False)
sketch5.addGeometry(Part.Circle(Vector(100, 8, 0), Vector(0, 0, 1), 1.2), False)
sketch5.addConstraint(Sketcher.Constraint("Equal", 0, 1))
sketch5.addConstraint(Sketcher.Constraint("Equal", 1, 2))
sketch5.addConstraint(Sketcher.Constraint("Equal", 2, 3))
sketch5.addConstraint(Sketcher.Constraint("Equal", 3, 4))
sketch5.addConstraint(Sketcher.Constraint("Equal", 4, 5))
sketch5.addConstraint(Sketcher.Constraint("Equal", 5, 6))
sketch5.addConstraint(Sketcher.Constraint("Equal", 6, 7))
sketch5.addConstraint(Sketcher.Constraint("Equal", 7, 8))
sketch5.addConstraint(Sketcher.Constraint("Equal", 8, 9))
sketch5.addConstraint(Sketcher.Constraint("Horizontal", 0, 3, 1, 3))
sketch5.addConstraint(Sketcher.Constraint("Horizontal", 1, 3, 2, 3))
sketch5.addConstraint(Sketcher.Constraint("Horizontal", 2, 3, 3, 3))
sketch5.addConstraint(Sketcher.Constraint("Horizontal", 3, 3, 4, 3))
sketch5.addConstraint(Sketcher.Constraint("Horizontal", 4, 3, 5, 3))
sketch5.addConstraint(Sketcher.Constraint("Horizontal", 5, 3, 6, 3))
sketch5.addConstraint(Sketcher.Constraint("Horizontal", 6, 3, 7, 3))
sketch5.addConstraint(Sketcher.Constraint("Horizontal", 7, 3, 8, 3))
sketch5.addConstraint(Sketcher.Constraint("Horizontal", 8, 3, 9, 3))
sketch5.addConstraint(Sketcher.Constraint("Diameter", 0, Q("2.5 mm")))
sketch5.addConstraint(Sketcher.Constraint("DistanceX", -1, 1, 0, 3, Q("1900 mm")))
sketch5.addConstraint(Sketcher.Constraint("DistanceY", -1, 1, 0, 3, Q("8 mm")))
sketch5.addConstraint(Sketcher.Constraint("DistanceX", -1, 1, 1, 3, Q("1700 mm")))
sketch5.addConstraint(Sketcher.Constraint("DistanceX", -1, 1, 2, 3, Q("1500 mm")))
sketch5.addConstraint(Sketcher.Constraint("DistanceX", -1, 1, 3, 3, Q("1300 mm")))
sketch5.addConstraint(Sketcher.Constraint("DistanceX", -1, 1, 4, 3, Q("900 mm")))
sketch5.addConstraint(Sketcher.Constraint("DistanceX", -1, 1, 5, 3, Q("700 mm")))
sketch5.addConstraint(Sketcher.Constraint("DistanceX", -1, 1, 6, 3, Q("500 mm")))
sketch5.addConstraint(Sketcher.Constraint("DistanceX", -1, 1, 7, 3, Q("1100 mm")))
sketch5.addConstraint(Sketcher.Constraint("DistanceX", -1, 1, 8, 3, Q("300 mm")))
sketch5.addConstraint(Sketcher.Constraint("DistanceX", -1, 1, 9, 3, Q("100 mm")))
doc.recompute()
hole4 = doc.addObject("PartDesign::Hole", "Hole003")
body.addObject(hole4)
hole4.Profile = sketch5
hole4.ThreadType = "None"
hole4.Diameter = 2.5
hole4.DepthType = "Dimension"
hole4.Depth = 30
hole4.DrillPoint = "Angled"
hole4.DrillPointAngle = 118
hole4.Reversed = True

doc.recompute()
